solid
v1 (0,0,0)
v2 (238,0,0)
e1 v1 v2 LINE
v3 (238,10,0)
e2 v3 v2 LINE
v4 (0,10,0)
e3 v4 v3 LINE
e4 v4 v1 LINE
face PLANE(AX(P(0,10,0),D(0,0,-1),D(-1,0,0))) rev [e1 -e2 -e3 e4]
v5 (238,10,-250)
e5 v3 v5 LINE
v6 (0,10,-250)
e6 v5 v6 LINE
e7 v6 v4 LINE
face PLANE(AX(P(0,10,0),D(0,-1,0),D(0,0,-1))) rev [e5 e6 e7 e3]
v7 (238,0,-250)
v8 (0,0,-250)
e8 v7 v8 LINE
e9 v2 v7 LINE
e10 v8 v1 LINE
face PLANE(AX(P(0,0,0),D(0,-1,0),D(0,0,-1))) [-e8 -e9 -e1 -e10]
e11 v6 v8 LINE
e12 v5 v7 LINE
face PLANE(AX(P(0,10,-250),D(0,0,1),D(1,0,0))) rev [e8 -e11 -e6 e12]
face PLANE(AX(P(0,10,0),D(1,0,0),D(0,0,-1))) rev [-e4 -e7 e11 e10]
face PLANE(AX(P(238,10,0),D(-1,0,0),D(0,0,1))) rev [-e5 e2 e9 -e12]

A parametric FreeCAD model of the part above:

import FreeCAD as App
import Part
import Sketcher

V = App.Vector
Q = App.Units.Quantity


def add_polygon(sketch, points):
    """Adds a closed chain of lines whose ends are joined by coincident constraints."""
    first, n = sketch.GeometryCount, len(points)
    for a, b in zip(points, points[1:] + points[:1]):
        sketch.addGeometry(Part.LineSegment(App.Vector(*a, 0), App.Vector(*b, 0)), False)
    for i in range(n):
        sketch.addConstraint(Sketcher.Constraint("Coincident", first + i, 2, first + (i + 1) % n, 1))

doc = App.newDocument("Part")
body = doc.addObject("PartDesign::Body", "Body")

sketch1 = body.newObject("Sketcher::SketchObject", "Sketch")
sketch1.AttachmentSupport = (doc.getObject("XZ_Plane"), [""])
sketch1.MapMode = "FlatFace"
add_polygon(sketch1, [(0, -250), (0, 0), (238, 0), (238, -250)])
sketch1.addConstraint(Sketcher.Constraint("Vertical", 0))
sketch1.addConstraint(Sketcher.Constraint("Horizontal", 1))
sketch1.addConstraint(Sketcher.Constraint("Vertical", 2))
sketch1.addConstraint(Sketcher.Constraint("Horizontal", 3))
sketch1.addConstraint(Sketcher.Constraint("Coincident", 0, 2, -1, 1))
sketch1.addConstraint(Sketcher.Constraint("DistanceX", 1, 1, 1, 2, Q("238 mm")))
sketch1.addConstraint(Sketcher.Constraint("DistanceY", 0, 1, 0, 2, Q("250 mm")))
pad1 = body.newObject("PartDesign::Pad", "Pad")
pad1.Profile = sketch1
pad1.Length = 10
pad1.Reversed = True

doc.recompute()
